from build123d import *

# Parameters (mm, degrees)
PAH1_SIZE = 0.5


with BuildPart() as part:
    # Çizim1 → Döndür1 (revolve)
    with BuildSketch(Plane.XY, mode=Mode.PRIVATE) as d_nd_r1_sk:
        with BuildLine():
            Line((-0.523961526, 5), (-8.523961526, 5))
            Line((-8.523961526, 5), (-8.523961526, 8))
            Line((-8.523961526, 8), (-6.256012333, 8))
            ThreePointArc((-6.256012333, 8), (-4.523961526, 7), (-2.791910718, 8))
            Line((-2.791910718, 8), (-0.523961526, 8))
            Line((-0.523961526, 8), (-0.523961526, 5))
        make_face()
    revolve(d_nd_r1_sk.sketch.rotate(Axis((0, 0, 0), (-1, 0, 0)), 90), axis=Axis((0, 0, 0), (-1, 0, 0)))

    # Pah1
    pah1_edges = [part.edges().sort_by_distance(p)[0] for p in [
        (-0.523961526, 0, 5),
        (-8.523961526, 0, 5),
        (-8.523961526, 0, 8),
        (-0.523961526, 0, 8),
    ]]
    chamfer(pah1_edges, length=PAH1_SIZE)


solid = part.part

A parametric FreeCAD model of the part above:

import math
import FreeCAD as App
import Part
import Sketcher

V = App.Vector


def edges_at(feature, points):
    """Names of the edges that pass closest to the given points."""
    edges = feature.Shape.Edges
    near = lambda p: min(range(len(edges)), key=lambda i: edges[i].distToShape(Part.Vertex(*p))[0])
    return sorted({f"Edge{near(p) + 1}" for p in points})

doc = App.newDocument("Part")
body = doc.addObject("PartDesign::Body", "Body")

# Sketch on XY plane
sketch1 = doc.addObject("Sketcher::SketchObject", "Sketch")
body.addObject(sketch1)
sketch1.AttachmentSupport = (doc.XY_Plane, [""])
sketch1.MapMode = "FlatFace"
sketch1.addGeometry([
    Part.LineSegment(V(-8.523962, 5, 0), V(-0.523962, 5, 0)),  # 0
    Part.LineSegment(V(-0.523962, 5, 0), V(-0.523962, 8, 0)),  # 1
    Part.LineSegment(V(-0.523962, 8, 0), V(-2.791911, 8, 0)),  # 2
    Part.ArcOfCircle(Part.Circle(V(-4.523962, 9, 0), V(0, 0, 1), 2), math.radians(-150), math.radians(-30)),  # 3
    Part.LineSegment(V(-6.256012, 8, 0), V(-8.523962, 8, 0)),  # 4
    Part.LineSegment(V(-8.523962, 8, 0), V(-8.523962, 5, 0)),  # 5
], False)
sketch1.addConstraint([
    Sketcher.Constraint("Coincident", 0, 2, 1, 1),
    Sketcher.Constraint("Coincident", 1, 2, 2, 1),
    Sketcher.Constraint("Coincident", 2, 2, 3, 2),
    Sketcher.Constraint("Coincident", 3, 1, 4, 1),
    Sketcher.Constraint("Coincident", 4, 2, 5, 1),
    Sketcher.Constraint("Coincident", 5, 2, 0, 1),
    Sketcher.Constraint("Horizontal", 0),
    Sketcher.Constraint("Vertical", 1),
    Sketcher.Constraint("Horizontal", 2),
    Sketcher.Constraint("Horizontal", 4),
    Sketcher.Constraint("Vertical", 5),
    Sketcher.Constraint("Horizontal", 2, 2, 3, 1),
    Sketcher.Constraint("Equal", 2, 4),
    Sketcher.Constraint("Radius", 3, 2.0),
    Sketcher.Constraint("DistanceX", 0, 1, 0, 2, 8.0),
    Sketcher.Constraint("DistanceY", 1, 1, 1, 2, 3.0),
    Sketcher.Constraint("DistanceY", -1, 1, 3, 3, 9.0),
    Sketcher.Constraint("DistanceY", -1, 1, 0, 2, 5.0),
    Sketcher.Constraint("DistanceX", 3, 3, -1, 1, 4.523962),
])
revolution = doc.addObject("PartDesign::Revolution", "Revolution")
body.addObject(revolution)
revolution.Profile = sketch1
revolution.ReferenceAxis = (sketch1, ["H_Axis"])
revolution.Angle = 360
doc.recompute()

chamfer = doc.addObject("PartDesign::Chamfer", "Chamfer")
body.addObject(chamfer)
chamfer.Base = (revolution, edges_at(revolution, [
    (-0.524, 0, 5),
    (-8.524, 0, 5),
    (-8.524, 0, 8),
    (-0.524, 0, 8),
]))
chamfer.Size = 0.5

doc.recompute()
